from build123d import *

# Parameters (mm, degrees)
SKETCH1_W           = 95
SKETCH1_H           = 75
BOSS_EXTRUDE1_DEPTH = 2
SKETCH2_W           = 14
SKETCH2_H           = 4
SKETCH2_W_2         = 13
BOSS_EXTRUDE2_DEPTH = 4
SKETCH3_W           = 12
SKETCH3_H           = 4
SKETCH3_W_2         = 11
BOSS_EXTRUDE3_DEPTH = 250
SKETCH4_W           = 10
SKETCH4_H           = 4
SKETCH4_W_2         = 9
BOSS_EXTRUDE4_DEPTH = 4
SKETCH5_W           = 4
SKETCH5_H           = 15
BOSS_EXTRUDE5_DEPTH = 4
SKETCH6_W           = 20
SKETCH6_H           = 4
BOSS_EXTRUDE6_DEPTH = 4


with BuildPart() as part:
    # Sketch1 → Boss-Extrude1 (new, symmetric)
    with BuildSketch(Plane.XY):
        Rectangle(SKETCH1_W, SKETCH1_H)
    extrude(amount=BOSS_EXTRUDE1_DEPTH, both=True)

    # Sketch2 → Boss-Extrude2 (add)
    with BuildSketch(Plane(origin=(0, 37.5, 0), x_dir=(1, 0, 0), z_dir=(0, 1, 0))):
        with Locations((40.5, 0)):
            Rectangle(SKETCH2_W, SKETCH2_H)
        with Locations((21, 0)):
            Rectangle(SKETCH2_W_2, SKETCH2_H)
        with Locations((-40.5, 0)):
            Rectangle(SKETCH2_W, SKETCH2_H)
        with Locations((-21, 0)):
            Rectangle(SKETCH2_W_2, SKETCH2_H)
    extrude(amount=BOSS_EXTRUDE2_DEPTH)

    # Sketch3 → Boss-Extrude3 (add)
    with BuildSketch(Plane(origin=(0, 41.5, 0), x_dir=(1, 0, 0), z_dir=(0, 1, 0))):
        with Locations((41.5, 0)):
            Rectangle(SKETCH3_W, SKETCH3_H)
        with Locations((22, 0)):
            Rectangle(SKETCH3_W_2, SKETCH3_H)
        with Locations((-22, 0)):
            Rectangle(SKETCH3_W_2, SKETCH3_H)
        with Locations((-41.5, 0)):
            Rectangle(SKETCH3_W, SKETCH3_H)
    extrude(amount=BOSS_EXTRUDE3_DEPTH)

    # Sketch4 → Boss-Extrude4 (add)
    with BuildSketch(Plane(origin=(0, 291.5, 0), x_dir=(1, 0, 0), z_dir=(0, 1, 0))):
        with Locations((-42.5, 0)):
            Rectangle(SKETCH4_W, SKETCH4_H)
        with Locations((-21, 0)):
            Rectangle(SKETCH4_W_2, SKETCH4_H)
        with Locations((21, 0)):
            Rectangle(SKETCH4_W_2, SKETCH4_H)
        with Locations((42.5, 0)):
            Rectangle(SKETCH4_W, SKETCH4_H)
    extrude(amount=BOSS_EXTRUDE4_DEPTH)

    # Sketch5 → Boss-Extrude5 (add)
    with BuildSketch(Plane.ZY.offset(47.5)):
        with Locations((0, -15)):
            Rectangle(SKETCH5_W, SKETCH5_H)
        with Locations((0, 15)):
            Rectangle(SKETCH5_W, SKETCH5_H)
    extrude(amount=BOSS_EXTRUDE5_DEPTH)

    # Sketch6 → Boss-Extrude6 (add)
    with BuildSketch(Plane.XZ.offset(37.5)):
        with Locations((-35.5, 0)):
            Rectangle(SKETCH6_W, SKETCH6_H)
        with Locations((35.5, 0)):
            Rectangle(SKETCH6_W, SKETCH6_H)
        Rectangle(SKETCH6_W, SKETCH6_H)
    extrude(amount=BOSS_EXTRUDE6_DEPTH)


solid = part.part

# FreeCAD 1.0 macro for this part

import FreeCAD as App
import Part
import Sketcher

doc = App.newDocument("Part")
body = doc.addObject("PartDesign::Body", "Body")

sketch1 = body.newObject("Sketcher::SketchObject", "Sketch")
sketch1.AttachmentSupport = (doc.getObject("XY_Plane"), [""])
sketch1.MapMode = "FlatFace"
sketch1.addGeometry([
    Part.LineSegment(App.Vector(-48, 38, 0), App.Vector(-48, -38, 0)),
    Part.LineSegment(App.Vector(-48, -38, 0), App.Vector(48, -38, 0)),
    Part.LineSegment(App.Vector(48, -38, 0), App.Vector(48, 38, 0)),
    Part.LineSegment(App.Vector(48, 38, 0), App.Vector(-48, 38, 0)),
], False)
sketch1.addConstraint([
    Sketcher.Constraint("Coincident", 0, 2, 1, 1),
    Sketcher.Constraint("Coincident", 1, 2, 2, 1),
    Sketcher.Constraint("Coincident", 2, 2, 3, 1),
    Sketcher.Constraint("Coincident", 3, 2, 0, 1),
    Sketcher.Constraint("Vertical", 0),
    Sketcher.Constraint("Horizontal", 1),
    Sketcher.Constraint("Vertical", 2),
    Sketcher.Constraint("Horizontal", 3),
    Sketcher.Constraint("Symmetric", 0, 2, 2, 2, -1, 1),
    Sketcher.Constraint("DistanceX", 1, 1, 1, 2, 95.0),
    Sketcher.Constraint("DistanceY", 0, 2, 0, 1, 75.0),
])
pad1 = body.newObject("PartDesign::Pad", "Pad")
pad1.Profile = sketch1
pad1.Length = 4
pad1.Midplane = True

sketch2 = body.newObject("Sketcher::SketchObject", "Sketch001")
sketch2.AttachmentSupport = (doc.getObject("XZ_Plane"), [""])
sketch2.MapMode = "FlatFace"
sketch2.AttachmentOffset = App.Placement(App.Vector(0, 0, -37.5), App.Rotation())
sketch2.addGeometry([
    Part.LineSegment(App.Vector(33.5, -2, 0), App.Vector(33.5, 2, 0)),
    Part.LineSegment(App.Vector(33.5, 2, 0), App.Vector(47.5, 2, 0)),
    Part.LineSegment(App.Vector(47.5, 2, 0), App.Vector(47.5, -2, 0)),
    Part.LineSegment(App.Vector(47.5, -2, 0), App.Vector(33.5, -2, 0)),
    Part.LineSegment(App.Vector(14.5, -2, 0), App.Vector(14.5, 2, 0)),
    Part.LineSegment(App.Vector(14.5, 2, 0), App.Vector(27.5, 2, 0)),
    Part.LineSegment(App.Vector(27.5, 2, 0), App.Vector(27.5, -2, 0)),
    Part.LineSegment(App.Vector(27.5, -2, 0), App.Vector(14.5, -2, 0)),
    Part.LineSegment(App.Vector(-47.5, -2, 0), App.Vector(-47.5, 2, 0)),
    Part.LineSegment(App.Vector(-47.5, 2, 0), App.Vector(-33.5, 2, 0)),
    Part.LineSegment(App.Vector(-33.5, 2, 0), App.Vector(-33.5, -2, 0)),
    Part.LineSegment(App.Vector(-33.5, -2, 0), App.Vector(-47.5, -2, 0)),
    Part.LineSegment(App.Vector(-27.5, -2, 0), App.Vector(-27.5, 2, 0)),
    Part.LineSegment(App.Vector(-27.5, 2, 0), App.Vector(-14.5, 2, 0)),
    Part.LineSegment(App.Vector(-14.5, 2, 0), App.Vector(-14.5, -2, 0)),
    Part.LineSegment(App.Vector(-14.5, -2, 0), App.Vector(-27.5, -2, 0)),
], False)
sketch2.addConstraint([
    Sketcher.Constraint("Coincident", 0, 2, 1, 1),
    Sketcher.Constraint("Coincident", 1, 2, 2, 1),
    Sketcher.Constraint("Coincident", 2, 2, 3, 1),
    Sketcher.Constraint("Coincident", 3, 2, 0, 1),
    Sketcher.Constraint("Coincident", 4, 2, 5, 1),
    Sketcher.Constraint("Coincident", 5, 2, 6, 1),
    Sketcher.Constraint("Coincident", 6, 2, 7, 1),
    Sketcher.Constraint("Coincident", 7, 2, 4, 1),
    Sketcher.Constraint("Coincident", 8, 2, 9, 1),
    Sketcher.Constraint("Coincident", 9, 2, 10, 1),
    Sketcher.Constraint("Coincident", 10, 2, 11, 1),
    Sketcher.Constraint("Coincident", 11, 2, 8, 1),
    Sketcher.Constraint("Coincident", 12, 2, 13, 1),
    Sketcher.Constraint("Coincident", 13, 2, 14, 1),
    Sketcher.Constraint("Coincident", 14, 2, 15, 1),
    Sketcher.Constraint("Coincident", 15, 2, 12, 1),
    Sketcher.Constraint("Vertical", 0),
    Sketcher.Constraint("Horizontal", 1),
    Sketcher.Constraint("Vertical", 2),
    Sketcher.Constraint("Horizontal", 3),
    Sketcher.Constraint("Vertical", 4),
    Sketcher.Constraint("Horizontal", 5),
    Sketcher.Constraint("Vertical", 6),
    Sketcher.Constraint("Horizontal", 7),
    Sketcher.Constraint("Vertical", 8),
    Sketcher.Constraint("Horizontal", 9),
    Sketcher.Constraint("Vertical", 10),
    Sketcher.Constraint("Horizontal", 11),
    Sketcher.Constraint("Vertical", 12),
    Sketcher.Constraint("Horizontal", 13),
    Sketcher.Constraint("Vertical", 14),
    Sketcher.Constraint("Horizontal", 15),
    Sketcher.Constraint("Symmetric", 2, 2, 8, 2, -1, 1),
    Sketcher.Constraint("Symmetric", 0, 2, 10, 2, -1, 1),
    Sketcher.Constraint("Symmetric", 6, 2, 12, 2, -1, 1),
    Sketcher.Constraint("Symmetric", 4, 2, 14, 2, -1, 1),
    Sketcher.Constraint("Horizontal", 1, 2, 4, 2),
    Sketcher.Constraint("Horizontal", 3, 2, 6, 2),
    Sketcher.Constraint("Horizontal", 5, 2, 8, 2),
    Sketcher.Constraint("DistanceX", 1, 1, 1, 2, 14.0),
    Sketcher.Constraint("DistanceX", 5, 1, 5, 2, 13.0),
    Sketcher.Constraint("DistanceY", 0, 1, 0, 2, 4.0),
    Sketcher.Constraint("DistanceX", 4, 2, 0, 2, 19.0),
    Sketcher.Constraint("DistanceX", 8, 2, 4, 2, 62.0),
])
pad2 = body.newObject("PartDesign::Pad", "Pad001")
pad2.Profile = sketch2
pad2.Length = 4
pad2.Reversed = True

sketch3 = body.newObject("Sketcher::SketchObject", "Sketch002")
sketch3.AttachmentSupport = (doc.getObject("XZ_Plane"), [""])
sketch3.MapMode = "FlatFace"
sketch3.AttachmentOffset = App.Placement(App.Vector(0, 0, -41.5), App.Rotation())
sketch3.addGeometry([
    Part.LineSegment(App.Vector(35.5, -2, 0), App.Vector(35.5, 2, 0)),
    Part.LineSegment(App.Vector(35.5, 2, 0), App.Vector(47.5, 2, 0)),
    Part.LineSegment(App.Vector(47.5, 2, 0), App.Vector(47.5, -2, 0)),
    Part.LineSegment(App.Vector(47.5, -2, 0), App.Vector(35.5, -2, 0)),
    Part.LineSegment(App.Vector(16.5, -2, 0), App.Vector(16.5, 2, 0)),
    Part.LineSegment(App.Vector(16.5, 2, 0), App.Vector(27.5, 2, 0)),
    Part.LineSegment(App.Vector(27.5, 2, 0), App.Vector(27.5, -2, 0)),
    Part.LineSegment(App.Vector(27.5, -2, 0), App.Vector(16.5, -2, 0)),
    Part.LineSegment(App.Vector(-27.5, -2, 0), App.Vector(-27.5, 2, 0)),
    Part.LineSegment(App.Vector(-27.5, 2, 0), App.Vector(-16.5, 2, 0)),
    Part.LineSegment(App.Vector(-16.5, 2, 0), App.Vector(-16.5, -2, 0)),
    Part.LineSegment(App.Vector(-16.5, -2, 0), App.Vector(-27.5, -2, 0)),
    Part.LineSegment(App.Vector(-47.5, -2, 0), App.Vector(-47.5, 2, 0)),
    Part.LineSegment(App.Vector(-47.5, 2, 0), App.Vector(-35.5, 2, 0)),
    Part.LineSegment(App.Vector(-35.5, 2, 0), App.Vector(-35.5, -2, 0)),
    Part.LineSegment(App.Vector(-35.5, -2, 0), App.Vector(-47.5, -2, 0)),
], False)
sketch3.addConstraint([
    Sketcher.Constraint("Coincident", 0, 2, 1, 1),
    Sketcher.Constraint("Coincident", 1, 2, 2, 1),
    Sketcher.Constraint("Coincident", 2, 2, 3, 1),
    Sketcher.Constraint("Coincident", 3, 2, 0, 1),
    Sketcher.Constraint("Coincident", 4, 2, 5, 1),
    Sketcher.Constraint("Coincident", 5, 2, 6, 1),
    Sketcher.Constraint("Coincident", 6, 2, 7, 1),
    Sketcher.Constraint("Coincident", 7, 2, 4, 1),
    Sketcher.Constraint("Coincident", 8, 2, 9, 1),
    Sketcher.Constraint("Coincident", 9, 2, 10, 1),
    Sketcher.Constraint("Coincident", 10, 2, 11, 1),
    Sketcher.Constraint("Coincident", 11, 2, 8, 1),
    Sketcher.Constraint("Coincident", 12, 2, 13, 1),
    Sketcher.Constraint("Coincident", 13, 2, 14, 1),
    Sketcher.Constraint("Coincident", 14, 2, 15, 1),
    Sketcher.Constraint("Coincident", 15, 2, 12, 1),
    Sketcher.Constraint("Vertical", 0),
    Sketcher.Constraint("Horizontal", 1),
    Sketcher.Constraint("Vertical", 2),
    Sketcher.Constraint("Horizontal", 3),
    Sketcher.Constraint("Vertical", 4),
    Sketcher.Constraint("Horizontal", 5),
    Sketcher.Constraint("Vertical", 6),
    Sketcher.Constraint("Horizontal", 7),
    Sketcher.Constraint("Vertical", 8),
    Sketcher.Constraint("Horizontal", 9),
    Sketcher.Constraint("Vertical", 10),
    Sketcher.Constraint("Horizontal", 11),
    Sketcher.Constraint("Vertical", 12),
    Sketcher.Constraint("Horizontal", 13),
    Sketcher.Constraint("Vertical", 14),
    Sketcher.Constraint("Horizontal", 15),
    Sketcher.Constraint("Symmetric", 6, 2, 8, 2, -1, 1),
    Sketcher.Constraint("Symmetric", 4, 2, 10, 2, -1, 1),
    Sketcher.Constraint("Symmetric", 2, 2, 12, 2, -1, 1),
    Sketcher.Constraint("Symmetric", 0, 2, 14, 2, -1, 1),
    Sketcher.Constraint("Horizontal", 1, 2, 4, 2),
    Sketcher.Constraint("Horizontal", 3, 2, 6, 2),
    Sketcher.Constraint("Horizontal", 5, 2, 8, 2),
    Sketcher.Constraint("DistanceX", 1, 1, 1, 2, 12.0),
    Sketcher.Constraint("DistanceX", 5, 1, 5, 2, 11.0),
    Sketcher.Constraint("DistanceY", 0, 1, 0, 2, 4.0),
    Sketcher.Constraint("DistanceX", 4, 2, 0, 2, 19.0),
    Sketcher.Constraint("DistanceX", 8, 2, 4, 2, 44.0),
])
pad3 = body.newObject("PartDesign::Pad", "Pad002")
pad3.Profile = sketch3
pad3.Length = 250
pad3.Reversed = True

sketch4 = body.newObject("Sketcher::SketchObject", "Sketch003")
sketch4.AttachmentSupport = (doc.getObject("XZ_Plane"), [""])
sketch4.MapMode = "FlatFace"
sketch4.AttachmentOffset = App.Placement(App.Vector(0, 0, -291.5), App.Rotation())
sketch4.addGeometry([
    Part.LineSegment(App.Vector(-47.5, -2, 0), App.Vector(-47.5, 2, 0)),
    Part.LineSegment(App.Vector(-47.5, 2, 0), App.Vector(-37.5, 2, 0)),
    Part.LineSegment(App.Vector(-37.5, 2, 0), App.Vector(-37.5, -2, 0)),
    Part.LineSegment(App.Vector(-37.5, -2, 0), App.Vector(-47.5, -2, 0)),
    Part.LineSegment(App.Vector(-25.5, -2, 0), App.Vector(-25.5, 2, 0)),
    Part.LineSegment(App.Vector(-25.5, 2, 0), App.Vector(-16.5, 2, 0)),
    Part.LineSegment(App.Vector(-16.5, 2, 0), App.Vector(-16.5, -2, 0)),
    Part.LineSegment(App.Vector(-16.5, -2, 0), App.Vector(-25.5, -2, 0)),
    Part.LineSegment(App.Vector(16.5, -2, 0), App.Vector(16.5, 2, 0)),
    Part.LineSegment(App.Vector(16.5, 2, 0), App.Vector(25.5, 2, 0)),
    Part.LineSegment(App.Vector(25.5, 2, 0), App.Vector(25.5, -2, 0)),
    Part.LineSegment(App.Vector(25.5, -2, 0), App.Vector(16.5, -2, 0)),
    Part.LineSegment(App.Vector(37.5, -2, 0), App.Vector(37.5, 2, 0)),
    Part.LineSegment(App.Vector(37.5, 2, 0), App.Vector(47.5, 2, 0)),
    Part.LineSegment(App.Vector(47.5, 2, 0), App.Vector(47.5, -2, 0)),
    Part.LineSegment(App.Vector(47.5, -2, 0), App.Vector(37.5, -2, 0)),
], False)
sketch4.addConstraint([
    Sketcher.Constraint("Coincident", 0, 2, 1, 1),
    Sketcher.Constraint("Coincident", 1, 2, 2, 1),
    Sketcher.Constraint("Coincident", 2, 2, 3, 1),
    Sketcher.Constraint("Coincident", 3, 2, 0, 1),
    Sketcher.Constraint("Coincident", 4, 2, 5, 1),
    Sketcher.Constraint("Coincident", 5, 2, 6, 1),
    Sketcher.Constraint("Coincident", 6, 2, 7, 1),
    Sketcher.Constraint("Coincident", 7, 2, 4, 1),
    Sketcher.Constraint("Coincident", 8, 2, 9, 1),
    Sketcher.Constraint("Coincident", 9, 2, 10, 1),
    Sketcher.Constraint("Coincident", 10, 2, 11, 1),
    Sketcher.Constraint("Coincident", 11, 2, 8, 1),
    Sketcher.Constraint("Coincident", 12, 2, 13, 1),
    Sketcher.Constraint("Coincident", 13, 2, 14, 1),
    Sketcher.Constraint("Coincident", 14, 2, 15, 1),
    Sketcher.Constraint("Coincident", 15, 2, 12, 1),
    Sketcher.Constraint("Vertical", 0),
    Sketcher.Constraint("Horizontal", 1),
    Sketcher.Constraint("Vertical", 2),
    Sketcher.Constraint("Horizontal", 3),
    Sketcher.Constraint("Vertical", 4),
    Sketcher.Constraint("Horizontal", 5),
    Sketcher.Constraint("Vertical", 6),
    Sketcher.Constraint("Horizontal", 7),
    Sketcher.Constraint("Vertical", 8),
    Sketcher.Constraint("Horizontal", 9),
    Sketcher.Constraint("Vertical", 10),
    Sketcher.Constraint("Horizontal", 11),
    Sketcher.Constraint("Vertical", 12),
    Sketcher.Constraint("Horizontal", 13),
    Sketcher.Constraint("Vertical", 14),
    Sketcher.Constraint("Horizontal", 15),
    Sketcher.Constraint("Symmetric", 6, 2, 8, 2, -1, 1),
    Sketcher.Constraint("Symmetric", 4, 2, 10, 2, -1, 1),
    Sketcher.Constraint("Symmetric", 2, 2, 12, 2, -1, 1),
    Sketcher.Constraint("Symmetric", 0, 2, 14, 2, -1, 1),
    Sketcher.Constraint("Horizontal", 1, 2, 4, 2),
    Sketcher.Constraint("Horizontal", 3, 2, 6, 2),
    Sketcher.Constraint("Horizontal", 5, 2, 8, 2),
    Sketcher.Constraint("DistanceX", 1, 1, 1, 2, 10.0),
    Sketcher.Constraint("DistanceX", 5, 1, 5, 2, 9.0),
    Sketcher.Constraint("DistanceY", 0, 1, 0, 2, 4.0),
    Sketcher.Constraint("DistanceX", 1, 2, 4, 2, 12.0),
    Sketcher.Constraint("DistanceX", 5, 2, 8, 2, 33.0),
])
pad4 = body.newObject("PartDesign::Pad", "Pad003")
pad4.Profile = sketch4
pad4.Length = 4
pad4.Reversed = True

sketch5 = body.newObject("Sketcher::SketchObject", "Sketch004")
sketch5.AttachmentSupport = (doc.getObject("YZ_Plane"), [""])
sketch5.MapMode = "FlatFace"
sketch5.AttachmentOffset = App.Placement(App.Vector(0, 0, -47.5), App.Rotation())
sketch5.addGeometry([
    Part.LineSegment(App.Vector(-7.5, -2, 0), App.Vector(-22.5, -2, 0)),
    Part.LineSegment(App.Vector(-22.5, -2, 0), App.Vector(-22.5, 2, 0)),
    Part.LineSegment(App.Vector(-22.5, 2, 0), App.Vector(-7.5, 2, 0)),
    Part.LineSegment(App.Vector(-7.5, 2, 0), App.Vector(-7.5, -2, 0)),
    Part.LineSegment(App.Vector(22.5, -2, 0), App.Vector(7.5, -2, 0)),
    Part.LineSegment(App.Vector(7.5, -2, 0), App.Vector(7.5, 2, 0)),
    Part.LineSegment(App.Vector(7.5, 2, 0), App.Vector(22.5, 2, 0)),
    Part.LineSegment(App.Vector(22.5, 2, 0), App.Vector(22.5, -2, 0)),
], False)
sketch5.addConstraint([
    Sketcher.Constraint("Coincident", 0, 2, 1, 1),
    Sketcher.Constraint("Coincident", 1, 2, 2, 1),
    Sketcher.Constraint("Coincident", 2, 2, 3, 1),
    Sketcher.Constraint("Coincident", 3, 2, 0, 1),
    Sketcher.Constraint("Coincident", 4, 2, 5, 1),
    Sketcher.Constraint("Coincident", 5, 2, 6, 1),
    Sketcher.Constraint("Coincident", 6, 2, 7, 1),
    Sketcher.Constraint("Coincident", 7, 2, 4, 1),
    Sketcher.Constraint("Horizontal", 0),
    Sketcher.Constraint("Vertical", 1),
    Sketcher.Constraint("Horizontal", 2),
    Sketcher.Constraint("Vertical", 3),
    Sketcher.Constraint("Horizontal", 4),
    Sketcher.Constraint("Vertical", 5),
    Sketcher.Constraint("Horizontal", 6),
    Sketcher.Constraint("Vertical", 7),
    Sketcher.Constraint("Symmetric", 2, 2, 4, 2, -1, 1),
    Sketcher.Constraint("Symmetric", 0, 2, 6, 2, -1, 1),
    Sketcher.Constraint("Horizontal", 3, 2, 4, 2),
    Sketcher.Constraint("DistanceX", 0, 2, 0, 1, 15.0),
    Sketcher.Constraint("DistanceY", 1, 1, 1, 2, 4.0),
    Sketcher.Constraint("DistanceX", 3, 2, 4, 2, 15.0),
])
pad5 = body.newObject("PartDesign::Pad", "Pad004")
pad5.Profile = sketch5
pad5.Length = 4
pad5.Reversed = True

sketch6 = body.newObject("Sketcher::SketchObject", "Sketch005")
sketch6.AttachmentSupport = (doc.getObject("XZ_Plane"), [""])
sketch6.MapMode = "FlatFace"
sketch6.AttachmentOffset = App.Placement(App.Vector(0, 0, 37.5), App.Rotation())
sketch6.addGeometry([
    Part.LineSegment(App.Vector(-45.5, 2, 0), App.Vector(-45.5, -2, 0)),
    Part.LineSegment(App.Vector(-45.5, -2, 0), App.Vector(-25.5, -2, 0)),
    Part.LineSegment(App.Vector(-25.5, -2, 0), App.Vector(-25.5, 2, 0)),
    Part.LineSegment(App.Vector(-25.5, 2, 0), App.Vector(-45.5, 2, 0)),
    Part.LineSegment(App.Vector(25.5, 2, 0), App.Vector(25.5, -2, 0)),
    Part.LineSegment(App.Vector(25.5, -2, 0), App.Vector(45.5, -2, 0)),
    Part.LineSegment(App.Vector(45.5, -2, 0), App.Vector(45.5, 2, 0)),
    Part.LineSegment(App.Vector(45.5, 2, 0), App.Vector(25.5, 2, 0)),
    Part.LineSegment(App.Vector(-10, 2, 0), App.Vector(-10, -2, 0)),
    Part.LineSegment(App.Vector(-10, -2, 0), App.Vector(10, -2, 0)),
    Part.LineSegment(App.Vector(10, -2, 0), App.Vector(10, 2, 0)),
    Part.LineSegment(App.Vector(10, 2, 0), App.Vector(-10, 2, 0)),
], False)
sketch6.addConstraint([
    Sketcher.Constraint("Coincident", 0, 2, 1, 1),
    Sketcher.Constraint("Coincident", 1, 2, 2, 1),
    Sketcher.Constraint("Coincident", 2, 2, 3, 1),
    Sketcher.Constraint("Coincident", 3, 2, 0, 1),
    Sketcher.Constraint("Coincident", 4, 2, 5, 1),
    Sketcher.Constraint("Coincident", 5, 2, 6, 1),
    Sketcher.Constraint("Coincident", 6, 2, 7, 1),
    Sketcher.Constraint("Coincident", 7, 2, 4, 1),
    Sketcher.Constraint("Coincident", 8, 2, 9, 1),
    Sketcher.Constraint("Coincident", 9, 2, 10, 1),
    Sketcher.Constraint("Coincident", 10, 2, 11, 1),
    Sketcher.Constraint("Coincident", 11, 2, 8, 1),
    Sketcher.Constraint("Vertical", 0),
    Sketcher.Constraint("Horizontal", 1),
    Sketcher.Constraint("Vertical", 2),
    Sketcher.Constraint("Horizontal", 3),
    Sketcher.Constraint("Vertical", 4),
    Sketcher.Constraint("Horizontal", 5),
    Sketcher.Constraint("Vertical", 6),
    Sketcher.Constraint("Horizontal", 7),
    Sketcher.Constraint("Vertical", 8),
    Sketcher.Constraint("Horizontal", 9),
    Sketcher.Constraint("Vertical", 10),
    Sketcher.Constraint("Horizontal", 11),
    Sketcher.Constraint("Symmetric", 2, 2, 4, 2, -1, 1),
    Sketcher.Constraint("Symmetric", 0, 2, 6, 2, -1, 1),
    Sketcher.Constraint("Symmetric", 8, 2, 10, 2, -1, 1),
    Sketcher.Constraint("Horizontal", 1, 2, 4, 2),
    Sketcher.Constraint("Horizontal", 5, 2, 8, 2),
    Sketcher.Constraint("Equal", 7, 9),
    Sketcher.Constraint("DistanceX", 1, 1, 1, 2, 20.0),
    Sketcher.Constraint("DistanceY", 0, 2, 0, 1, 4.0),
    Sketcher.Constraint("DistanceX", 1, 2, 4, 2, 51.0),
])
pad6 = body.newObject("PartDesign::Pad", "Pad005")
pad6.Profile = sketch6
pad6.Length = 4

doc.recompute()
